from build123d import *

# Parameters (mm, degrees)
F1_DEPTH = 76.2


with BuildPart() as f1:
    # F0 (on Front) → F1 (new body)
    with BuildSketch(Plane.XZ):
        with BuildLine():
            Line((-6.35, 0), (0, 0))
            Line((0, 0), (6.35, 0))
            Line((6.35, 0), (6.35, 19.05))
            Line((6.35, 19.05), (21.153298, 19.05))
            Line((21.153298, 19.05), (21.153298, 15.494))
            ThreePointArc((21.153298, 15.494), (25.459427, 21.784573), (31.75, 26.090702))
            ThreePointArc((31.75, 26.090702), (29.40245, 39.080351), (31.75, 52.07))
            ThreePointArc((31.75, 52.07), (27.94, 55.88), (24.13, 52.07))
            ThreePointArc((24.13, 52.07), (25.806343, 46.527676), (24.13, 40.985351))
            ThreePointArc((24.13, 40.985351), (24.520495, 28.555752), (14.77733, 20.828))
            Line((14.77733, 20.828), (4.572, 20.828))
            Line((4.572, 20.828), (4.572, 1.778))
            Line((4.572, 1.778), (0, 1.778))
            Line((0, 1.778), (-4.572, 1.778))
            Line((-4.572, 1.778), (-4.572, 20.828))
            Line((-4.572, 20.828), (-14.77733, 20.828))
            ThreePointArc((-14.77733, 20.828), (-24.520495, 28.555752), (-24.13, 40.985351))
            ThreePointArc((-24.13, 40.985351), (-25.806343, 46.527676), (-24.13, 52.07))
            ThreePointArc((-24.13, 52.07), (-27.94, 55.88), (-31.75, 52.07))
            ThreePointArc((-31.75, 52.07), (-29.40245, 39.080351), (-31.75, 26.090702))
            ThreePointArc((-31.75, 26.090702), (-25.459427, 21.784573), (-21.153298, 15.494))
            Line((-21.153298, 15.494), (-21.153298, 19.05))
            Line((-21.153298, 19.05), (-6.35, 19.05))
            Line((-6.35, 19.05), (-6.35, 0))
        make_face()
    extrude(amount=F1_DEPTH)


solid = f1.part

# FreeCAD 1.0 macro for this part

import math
import FreeCAD as App
import Part
import Sketcher
Q = App.Units.Quantity

doc = App.newDocument("Part")
params = doc.addObject("Spreadsheet::Sheet", "Params")
for row, (alias, value) in enumerate([
    ("sketch1_radius", "0.15 in"),
    ("sketch1_width", "0.5 in"),
    ("sketch1_width2", "0.36 in"),
    ("sketch1_height", "0.75 in"),
    ("sketch1_height2", "0.14 in"),
    ("pad1_length", "3 in"),
], start=1):
    params.set(f"A{row}", alias)
    params.set(f"B{row}", "=" + value)
    params.setAlias(f"B{row}", alias)

body = doc.addObject("PartDesign::Body", "Body")

# Sketch on XZ plane
sketch1 = doc.addObject("Sketcher::SketchObject", "Sketch")
body.addObject(sketch1)
sketch1.AttachmentSupport = (doc.XZ_Plane, [""])
sketch1.MapMode = "FlatFace"
sketch1.addGeometry([
    Part.LineSegment(App.Vector(-6.3, 0, 0), App.Vector(6.3, 0, 0)),  # 0
    Part.LineSegment(App.Vector(6.3, 0, 0), App.Vector(6.3, 19.1, 0)),  # 1
    Part.LineSegment(App.Vector(6.3, 19.1, 0), App.Vector(21.2, 19.1, 0)),  # 2
    Part.LineSegment(App.Vector(21.2, 19.1, 0), App.Vector(21.2, 15.5, 0)),  # 3
    Part.ArcOfCircle(Part.Circle(App.Vector(40.1, 7.1, 0), App.Vector(0, 0, 1), 20.7), math.radians(114), math.radians(156)),  # 4
    Part.ArcOfCircle(Part.Circle(App.Vector(66.5, 39.1, 0), App.Vector(0, 0, 1), 37.1), math.radians(160), math.radians(200)),  # 5
    Part.ArcOfCircle(Part.Circle(App.Vector(27.9, 52.1, 0), App.Vector(0, 0, 1), 3.8), math.radians(0), math.radians(180)),  # 6
    Part.ArcOfCircle(Part.Circle(App.Vector(15.8, 46.5, 0), App.Vector(0, 0, 1), 10), math.radians(-34), math.radians(34)),  # 7
    Part.ArcOfCircle(Part.Circle(App.Vector(12, 34.4, 0), App.Vector(0, 0, 1), 13.8), math.radians(-78), math.radians(28)),  # 8
    Part.LineSegment(App.Vector(14.8, 20.8, 0), App.Vector(4.6, 20.8, 0)),  # 9
    Part.LineSegment(App.Vector(4.6, 20.8, 0), App.Vector(4.6, 1.8, 0)),  # 10
    Part.LineSegment(App.Vector(4.6, 1.8, 0), App.Vector(-4.6, 1.8, 0)),  # 11
    Part.LineSegment(App.Vector(-4.6, 1.8, 0), App.Vector(-4.6, 20.8, 0)),  # 12
    Part.LineSegment(App.Vector(-4.6, 20.8, 0), App.Vector(-14.8, 20.8, 0)),  # 13
    Part.ArcOfCircle(Part.Circle(App.Vector(-12, 34.4, 0), App.Vector(0, 0, 1), 13.8), math.radians(152), math.radians(258)),  # 14
    Part.ArcOfCircle(Part.Circle(App.Vector(-15.8, 46.5, 0), App.Vector(0, 0, 1), 10), math.radians(146), math.radians(214)),  # 15
    Part.ArcOfCircle(Part.Circle(App.Vector(-27.9, 52.1, 0), App.Vector(0, 0, 1), 3.8), math.radians(0), math.radians(180)),  # 16
    Part.ArcOfCircle(Part.Circle(App.Vector(-66.5, 39.1, 0), App.Vector(0, 0, 1), 37.1), math.radians(-20), math.radians(20)),  # 17
    Part.ArcOfCircle(Part.Circle(App.Vector(-40.1, 7.1, 0), App.Vector(0, 0, 1), 20.7), math.radians(24), math.radians(66)),  # 18
    Part.LineSegment(App.Vector(-21.2, 15.5, 0), App.Vector(-21.2, 19.1, 0)),  # 19
    Part.LineSegment(App.Vector(-21.2, 19.1, 0), App.Vector(-6.3, 19.1, 0)),  # 20
    Part.LineSegment(App.Vector(-6.3, 19.1, 0), App.Vector(-6.3, 0, 0)),  # 21
], False)
sketch1.addConstraint([
    Sketcher.Constraint("Coincident", 0, 2, 1, 1),
    Sketcher.Constraint("Coincident", 1, 2, 2, 1),
    Sketcher.Constraint("Coincident", 2, 2, 3, 1),
    Sketcher.Constraint("Coincident", 3, 2, 4, 2),
    Sketcher.Constraint("Coincident", 4, 1, 5, 2),
    Sketcher.Constraint("Coincident", 5, 1, 6, 1),
    Sketcher.Constraint("Coincident", 6, 2, 7, 2),
    Sketcher.Constraint("Coincident", 7, 1, 8, 2),
    Sketcher.Constraint("Coincident", 8, 1, 9, 1),
    Sketcher.Constraint("Coincident", 9, 2, 10, 1),
    Sketcher.Constraint("Coincident", 10, 2, 11, 1),
    Sketcher.Constraint("Coincident", 11, 2, 12, 1),
    Sketcher.Constraint("Coincident", 12, 2, 13, 1),
    Sketcher.Constraint("Coincident", 13, 2, 14, 2),
    Sketcher.Constraint("Coincident", 14, 1, 15, 2),
    Sketcher.Constraint("Coincident", 15, 1, 16, 1),
    Sketcher.Constraint("Coincident", 16, 2, 17, 2),
    Sketcher.Constraint("Coincident", 17, 1, 18, 2),
    Sketcher.Constraint("Coincident", 18, 1, 19, 1),
    Sketcher.Constraint("Coincident", 19, 2, 20, 1),
    Sketcher.Constraint("Coincident", 20, 2, 21, 1),
    Sketcher.Constraint("Coincident", 21, 2, 0, 1),
    Sketcher.Constraint("Horizontal", 0),
    Sketcher.Constraint("Vertical", 1),
    Sketcher.Constraint("Horizontal", 2),
    Sketcher.Constraint("Vertical", 3),
    Sketcher.Constraint("Horizontal", 9),
    Sketcher.Constraint("Vertical", 10),
    Sketcher.Constraint("Horizontal", 11),
    Sketcher.Constraint("Vertical", 12),
    Sketcher.Constraint("Horizontal", 13),
    Sketcher.Constraint("Vertical", 19),
    Sketcher.Constraint("Horizontal", 20),
    Sketcher.Constraint("Vertical", 21),
    Sketcher.Constraint("Equal", 8, 14),
    Sketcher.Constraint("Equal", 7, 15),
    Sketcher.Constraint("Equal", 6, 16),
    Sketcher.Constraint("Equal", 5, 17),
    Sketcher.Constraint("Equal", 4, 18),
    Sketcher.Constraint("Symmetric", 0, 2, 21, 2, -1, 1),
    Sketcher.Constraint("Symmetric", 8, 3, 14, 3, -2),
    Sketcher.Constraint("Symmetric", 7, 3, 15, 3, -2),
    Sketcher.Constraint("Symmetric", 6, 3, 16, 3, -2),
    Sketcher.Constraint("Symmetric", 5, 3, 17, 3, -2),
    Sketcher.Constraint("Symmetric", 4, 3, 18, 3, -2),
    Sketcher.Constraint("Symmetric", 9, 2, 12, 2, -2),
    Sketcher.Constraint("Symmetric", 2, 2, 19, 2, -2),
    Sketcher.Constraint("Horizontal", 16, 3, 5, 1),
    Sketcher.Constraint("Horizontal", 5, 1, 6, 2),
    Sketcher.Constraint("Vertical", 4, 1, 5, 1),
    Sketcher.Constraint("Vertical", 6, 2, 7, 1),
    Sketcher.Constraint("Equal", 1, 10),
    Sketcher.Constraint("Radius", 6, Q("0.15 in")),
    Sketcher.Constraint("DistanceX", 0, 1, 0, 2, Q("0.5 in")),
    Sketcher.Constraint("DistanceX", 11, 2, 11, 1, Q("0.36 in")),
    Sketcher.Constraint("DistanceY", 1, 1, 1, 2, Q("0.75 in")),
    Sketcher.Constraint("DistanceY", 3, 2, 3, 1, Q("0.14 in")),
    Sketcher.Constraint("DistanceX", -1, 1, 6, 3, Q("1.1 in")),
    Sketcher.Constraint("DistanceY", 2, 2, 5, 1, Q("1.3 in")),
    Sketcher.Constraint("DistanceY", -1, 1, 8, 1, Q("0.82 in")),
    Sketcher.Constraint("Radius", 5, 37.111451),
    Sketcher.Constraint("Radius", 8, 13.843251),
    Sketcher.Constraint("Radius", 4, 20.707484),
    Sketcher.Constraint("Radius", 7, 10.000187),
    Sketcher.Constraint("DistanceX", 14, 3, 4, 3, Q("2.0498 in")),
    Sketcher.Constraint("DistanceX", 9, 2, 9, 1, 10.20533),
    Sketcher.Constraint("DistanceX", -1, 1, 5, 3, 66.513901),
    Sketcher.Constraint("DistanceX", 18, 1, -1, 1, 21.153298),
])
sketch1.setExpression("Constraints[52]", "Params.sketch1_radius")
sketch1.setExpression("Constraints[53]", "Params.sketch1_width")
sketch1.setExpression("Constraints[54]", "Params.sketch1_width2")
sketch1.setExpression("Constraints[55]", "Params.sketch1_height")
sketch1.setExpression("Constraints[56]", "Params.sketch1_height2")
pad1 = doc.addObject("PartDesign::Pad", "Pad")
body.addObject(pad1)
pad1.Profile = sketch1
pad1.setExpression("Length", "Params.pad1_length")

doc.recompute()
